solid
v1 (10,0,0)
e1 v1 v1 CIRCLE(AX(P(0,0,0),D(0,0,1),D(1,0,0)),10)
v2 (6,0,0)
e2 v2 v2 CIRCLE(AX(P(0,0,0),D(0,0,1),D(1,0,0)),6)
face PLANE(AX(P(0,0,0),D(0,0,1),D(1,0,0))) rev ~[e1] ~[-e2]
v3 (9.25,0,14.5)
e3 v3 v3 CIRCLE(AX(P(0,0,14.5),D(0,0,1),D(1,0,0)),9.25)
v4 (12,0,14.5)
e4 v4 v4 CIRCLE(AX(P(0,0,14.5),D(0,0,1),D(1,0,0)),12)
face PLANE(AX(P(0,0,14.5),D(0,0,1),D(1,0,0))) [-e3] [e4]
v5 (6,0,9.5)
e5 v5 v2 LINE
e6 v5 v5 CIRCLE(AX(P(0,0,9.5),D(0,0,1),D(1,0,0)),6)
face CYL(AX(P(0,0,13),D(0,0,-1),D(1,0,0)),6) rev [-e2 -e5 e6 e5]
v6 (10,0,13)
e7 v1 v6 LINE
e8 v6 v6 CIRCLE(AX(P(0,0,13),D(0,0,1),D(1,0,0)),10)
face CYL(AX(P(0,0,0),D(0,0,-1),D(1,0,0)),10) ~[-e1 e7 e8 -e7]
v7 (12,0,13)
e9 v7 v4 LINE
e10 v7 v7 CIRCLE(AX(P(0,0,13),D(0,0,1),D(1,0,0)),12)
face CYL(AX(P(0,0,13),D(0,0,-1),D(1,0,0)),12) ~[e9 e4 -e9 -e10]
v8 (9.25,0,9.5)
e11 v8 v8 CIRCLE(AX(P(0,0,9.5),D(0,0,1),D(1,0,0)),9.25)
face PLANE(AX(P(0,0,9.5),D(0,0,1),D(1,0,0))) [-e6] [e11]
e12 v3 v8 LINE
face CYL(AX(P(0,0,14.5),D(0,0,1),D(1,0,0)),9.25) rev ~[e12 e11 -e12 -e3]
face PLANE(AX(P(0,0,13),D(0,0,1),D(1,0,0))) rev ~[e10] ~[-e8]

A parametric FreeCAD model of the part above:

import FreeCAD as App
import Part
import Sketcher
Q = App.Units.Quantity

doc = App.newDocument("Part")
body = doc.addObject("PartDesign::Body", "Body")

sketch1 = body.newObject("Sketcher::SketchObject", "Sketch")
sketch1.AttachmentSupport = (doc.getObject("XY_Plane"), [""])
sketch1.MapMode = "FlatFace"
sketch1.addGeometry(Part.Circle(App.Vector(0, 0, 0), App.Vector(0, 0, 1), 10), False)
sketch1.addGeometry(Part.Circle(App.Vector(0, 0, 0), App.Vector(0, 0, 1), 6), False)
sketch1.addConstraint(Sketcher.Constraint("Coincident", 0, 3, -1, 1))
sketch1.addConstraint(Sketcher.Constraint("Coincident", 1, 3, -1, 1))
sketch1.addConstraint(Sketcher.Constraint("Diameter", 0, Q("20 mm")))
sketch1.addConstraint(Sketcher.Constraint("Diameter", 1, Q("12 mm")))
pad1 = body.newObject("PartDesign::Pad", "Pad")
pad1.Profile = sketch1
pad1.Length = 13

sketch2 = body.newObject("Sketcher::SketchObject", "Sketch001")
sketch2.AttachmentSupport = (doc.getObject("XY_Plane"), [""])
sketch2.MapMode = "FlatFace"
sketch2.AttachmentOffset = App.Placement(App.Vector(0, 0, 13), App.Rotation())
sketch2.addGeometry(Part.Circle(App.Vector(0, 0, 0), App.Vector(0, 0, 1), 12), False)
sketch2.addGeometry(Part.Circle(App.Vector(0, 0, 0), App.Vector(0, 0, 1), 6), False)
sketch2.addConstraint(Sketcher.Constraint("Coincident", 0, 3, -1, 1))
sketch2.addConstraint(Sketcher.Constraint("Coincident", 1, 3, -1, 1))
sketch2.addConstraint(Sketcher.Constraint("Diameter", 0, Q("24 mm")))
sketch2.addConstraint(Sketcher.Constraint("Diameter", 1, Q("12 mm")))
pad2 = body.newObject("PartDesign::Pad", "Pad001")
pad2.Profile = sketch2
pad2.Length = 1.5

sketch3 = body.newObject("Sketcher::SketchObject", "Sketch002")
sketch3.AttachmentSupport = (doc.getObject("XY_Plane"), [""])
sketch3.MapMode = "FlatFace"
sketch3.AttachmentOffset = App.Placement(App.Vector(0, 0, 14.5), App.Rotation())
sketch3.addGeometry(Part.Circle(App.Vector(0, 0, 0), App.Vector(0, 0, 1), 9), False)
sketch3.addGeometry(Part.Circle(App.Vector(0, 0, 0), App.Vector(0, 0, 1), 6), False)
sketch3.addConstraint(Sketcher.Constraint("Coincident", 0, 3, -1, 1))
sketch3.addConstraint(Sketcher.Constraint("Coincident", 1, 3, -1, 1))
sketch3.addConstraint(Sketcher.Constraint("Diameter", 1, Q("12 mm")))
sketch3.addConstraint(Sketcher.Constraint("Diameter", 0, Q("18.5 mm")))
pocket1 = body.newObject("PartDesign::Pocket", "Pocket")
pocket1.Profile = sketch3
pocket1.Length = 5

doc.recompute()
